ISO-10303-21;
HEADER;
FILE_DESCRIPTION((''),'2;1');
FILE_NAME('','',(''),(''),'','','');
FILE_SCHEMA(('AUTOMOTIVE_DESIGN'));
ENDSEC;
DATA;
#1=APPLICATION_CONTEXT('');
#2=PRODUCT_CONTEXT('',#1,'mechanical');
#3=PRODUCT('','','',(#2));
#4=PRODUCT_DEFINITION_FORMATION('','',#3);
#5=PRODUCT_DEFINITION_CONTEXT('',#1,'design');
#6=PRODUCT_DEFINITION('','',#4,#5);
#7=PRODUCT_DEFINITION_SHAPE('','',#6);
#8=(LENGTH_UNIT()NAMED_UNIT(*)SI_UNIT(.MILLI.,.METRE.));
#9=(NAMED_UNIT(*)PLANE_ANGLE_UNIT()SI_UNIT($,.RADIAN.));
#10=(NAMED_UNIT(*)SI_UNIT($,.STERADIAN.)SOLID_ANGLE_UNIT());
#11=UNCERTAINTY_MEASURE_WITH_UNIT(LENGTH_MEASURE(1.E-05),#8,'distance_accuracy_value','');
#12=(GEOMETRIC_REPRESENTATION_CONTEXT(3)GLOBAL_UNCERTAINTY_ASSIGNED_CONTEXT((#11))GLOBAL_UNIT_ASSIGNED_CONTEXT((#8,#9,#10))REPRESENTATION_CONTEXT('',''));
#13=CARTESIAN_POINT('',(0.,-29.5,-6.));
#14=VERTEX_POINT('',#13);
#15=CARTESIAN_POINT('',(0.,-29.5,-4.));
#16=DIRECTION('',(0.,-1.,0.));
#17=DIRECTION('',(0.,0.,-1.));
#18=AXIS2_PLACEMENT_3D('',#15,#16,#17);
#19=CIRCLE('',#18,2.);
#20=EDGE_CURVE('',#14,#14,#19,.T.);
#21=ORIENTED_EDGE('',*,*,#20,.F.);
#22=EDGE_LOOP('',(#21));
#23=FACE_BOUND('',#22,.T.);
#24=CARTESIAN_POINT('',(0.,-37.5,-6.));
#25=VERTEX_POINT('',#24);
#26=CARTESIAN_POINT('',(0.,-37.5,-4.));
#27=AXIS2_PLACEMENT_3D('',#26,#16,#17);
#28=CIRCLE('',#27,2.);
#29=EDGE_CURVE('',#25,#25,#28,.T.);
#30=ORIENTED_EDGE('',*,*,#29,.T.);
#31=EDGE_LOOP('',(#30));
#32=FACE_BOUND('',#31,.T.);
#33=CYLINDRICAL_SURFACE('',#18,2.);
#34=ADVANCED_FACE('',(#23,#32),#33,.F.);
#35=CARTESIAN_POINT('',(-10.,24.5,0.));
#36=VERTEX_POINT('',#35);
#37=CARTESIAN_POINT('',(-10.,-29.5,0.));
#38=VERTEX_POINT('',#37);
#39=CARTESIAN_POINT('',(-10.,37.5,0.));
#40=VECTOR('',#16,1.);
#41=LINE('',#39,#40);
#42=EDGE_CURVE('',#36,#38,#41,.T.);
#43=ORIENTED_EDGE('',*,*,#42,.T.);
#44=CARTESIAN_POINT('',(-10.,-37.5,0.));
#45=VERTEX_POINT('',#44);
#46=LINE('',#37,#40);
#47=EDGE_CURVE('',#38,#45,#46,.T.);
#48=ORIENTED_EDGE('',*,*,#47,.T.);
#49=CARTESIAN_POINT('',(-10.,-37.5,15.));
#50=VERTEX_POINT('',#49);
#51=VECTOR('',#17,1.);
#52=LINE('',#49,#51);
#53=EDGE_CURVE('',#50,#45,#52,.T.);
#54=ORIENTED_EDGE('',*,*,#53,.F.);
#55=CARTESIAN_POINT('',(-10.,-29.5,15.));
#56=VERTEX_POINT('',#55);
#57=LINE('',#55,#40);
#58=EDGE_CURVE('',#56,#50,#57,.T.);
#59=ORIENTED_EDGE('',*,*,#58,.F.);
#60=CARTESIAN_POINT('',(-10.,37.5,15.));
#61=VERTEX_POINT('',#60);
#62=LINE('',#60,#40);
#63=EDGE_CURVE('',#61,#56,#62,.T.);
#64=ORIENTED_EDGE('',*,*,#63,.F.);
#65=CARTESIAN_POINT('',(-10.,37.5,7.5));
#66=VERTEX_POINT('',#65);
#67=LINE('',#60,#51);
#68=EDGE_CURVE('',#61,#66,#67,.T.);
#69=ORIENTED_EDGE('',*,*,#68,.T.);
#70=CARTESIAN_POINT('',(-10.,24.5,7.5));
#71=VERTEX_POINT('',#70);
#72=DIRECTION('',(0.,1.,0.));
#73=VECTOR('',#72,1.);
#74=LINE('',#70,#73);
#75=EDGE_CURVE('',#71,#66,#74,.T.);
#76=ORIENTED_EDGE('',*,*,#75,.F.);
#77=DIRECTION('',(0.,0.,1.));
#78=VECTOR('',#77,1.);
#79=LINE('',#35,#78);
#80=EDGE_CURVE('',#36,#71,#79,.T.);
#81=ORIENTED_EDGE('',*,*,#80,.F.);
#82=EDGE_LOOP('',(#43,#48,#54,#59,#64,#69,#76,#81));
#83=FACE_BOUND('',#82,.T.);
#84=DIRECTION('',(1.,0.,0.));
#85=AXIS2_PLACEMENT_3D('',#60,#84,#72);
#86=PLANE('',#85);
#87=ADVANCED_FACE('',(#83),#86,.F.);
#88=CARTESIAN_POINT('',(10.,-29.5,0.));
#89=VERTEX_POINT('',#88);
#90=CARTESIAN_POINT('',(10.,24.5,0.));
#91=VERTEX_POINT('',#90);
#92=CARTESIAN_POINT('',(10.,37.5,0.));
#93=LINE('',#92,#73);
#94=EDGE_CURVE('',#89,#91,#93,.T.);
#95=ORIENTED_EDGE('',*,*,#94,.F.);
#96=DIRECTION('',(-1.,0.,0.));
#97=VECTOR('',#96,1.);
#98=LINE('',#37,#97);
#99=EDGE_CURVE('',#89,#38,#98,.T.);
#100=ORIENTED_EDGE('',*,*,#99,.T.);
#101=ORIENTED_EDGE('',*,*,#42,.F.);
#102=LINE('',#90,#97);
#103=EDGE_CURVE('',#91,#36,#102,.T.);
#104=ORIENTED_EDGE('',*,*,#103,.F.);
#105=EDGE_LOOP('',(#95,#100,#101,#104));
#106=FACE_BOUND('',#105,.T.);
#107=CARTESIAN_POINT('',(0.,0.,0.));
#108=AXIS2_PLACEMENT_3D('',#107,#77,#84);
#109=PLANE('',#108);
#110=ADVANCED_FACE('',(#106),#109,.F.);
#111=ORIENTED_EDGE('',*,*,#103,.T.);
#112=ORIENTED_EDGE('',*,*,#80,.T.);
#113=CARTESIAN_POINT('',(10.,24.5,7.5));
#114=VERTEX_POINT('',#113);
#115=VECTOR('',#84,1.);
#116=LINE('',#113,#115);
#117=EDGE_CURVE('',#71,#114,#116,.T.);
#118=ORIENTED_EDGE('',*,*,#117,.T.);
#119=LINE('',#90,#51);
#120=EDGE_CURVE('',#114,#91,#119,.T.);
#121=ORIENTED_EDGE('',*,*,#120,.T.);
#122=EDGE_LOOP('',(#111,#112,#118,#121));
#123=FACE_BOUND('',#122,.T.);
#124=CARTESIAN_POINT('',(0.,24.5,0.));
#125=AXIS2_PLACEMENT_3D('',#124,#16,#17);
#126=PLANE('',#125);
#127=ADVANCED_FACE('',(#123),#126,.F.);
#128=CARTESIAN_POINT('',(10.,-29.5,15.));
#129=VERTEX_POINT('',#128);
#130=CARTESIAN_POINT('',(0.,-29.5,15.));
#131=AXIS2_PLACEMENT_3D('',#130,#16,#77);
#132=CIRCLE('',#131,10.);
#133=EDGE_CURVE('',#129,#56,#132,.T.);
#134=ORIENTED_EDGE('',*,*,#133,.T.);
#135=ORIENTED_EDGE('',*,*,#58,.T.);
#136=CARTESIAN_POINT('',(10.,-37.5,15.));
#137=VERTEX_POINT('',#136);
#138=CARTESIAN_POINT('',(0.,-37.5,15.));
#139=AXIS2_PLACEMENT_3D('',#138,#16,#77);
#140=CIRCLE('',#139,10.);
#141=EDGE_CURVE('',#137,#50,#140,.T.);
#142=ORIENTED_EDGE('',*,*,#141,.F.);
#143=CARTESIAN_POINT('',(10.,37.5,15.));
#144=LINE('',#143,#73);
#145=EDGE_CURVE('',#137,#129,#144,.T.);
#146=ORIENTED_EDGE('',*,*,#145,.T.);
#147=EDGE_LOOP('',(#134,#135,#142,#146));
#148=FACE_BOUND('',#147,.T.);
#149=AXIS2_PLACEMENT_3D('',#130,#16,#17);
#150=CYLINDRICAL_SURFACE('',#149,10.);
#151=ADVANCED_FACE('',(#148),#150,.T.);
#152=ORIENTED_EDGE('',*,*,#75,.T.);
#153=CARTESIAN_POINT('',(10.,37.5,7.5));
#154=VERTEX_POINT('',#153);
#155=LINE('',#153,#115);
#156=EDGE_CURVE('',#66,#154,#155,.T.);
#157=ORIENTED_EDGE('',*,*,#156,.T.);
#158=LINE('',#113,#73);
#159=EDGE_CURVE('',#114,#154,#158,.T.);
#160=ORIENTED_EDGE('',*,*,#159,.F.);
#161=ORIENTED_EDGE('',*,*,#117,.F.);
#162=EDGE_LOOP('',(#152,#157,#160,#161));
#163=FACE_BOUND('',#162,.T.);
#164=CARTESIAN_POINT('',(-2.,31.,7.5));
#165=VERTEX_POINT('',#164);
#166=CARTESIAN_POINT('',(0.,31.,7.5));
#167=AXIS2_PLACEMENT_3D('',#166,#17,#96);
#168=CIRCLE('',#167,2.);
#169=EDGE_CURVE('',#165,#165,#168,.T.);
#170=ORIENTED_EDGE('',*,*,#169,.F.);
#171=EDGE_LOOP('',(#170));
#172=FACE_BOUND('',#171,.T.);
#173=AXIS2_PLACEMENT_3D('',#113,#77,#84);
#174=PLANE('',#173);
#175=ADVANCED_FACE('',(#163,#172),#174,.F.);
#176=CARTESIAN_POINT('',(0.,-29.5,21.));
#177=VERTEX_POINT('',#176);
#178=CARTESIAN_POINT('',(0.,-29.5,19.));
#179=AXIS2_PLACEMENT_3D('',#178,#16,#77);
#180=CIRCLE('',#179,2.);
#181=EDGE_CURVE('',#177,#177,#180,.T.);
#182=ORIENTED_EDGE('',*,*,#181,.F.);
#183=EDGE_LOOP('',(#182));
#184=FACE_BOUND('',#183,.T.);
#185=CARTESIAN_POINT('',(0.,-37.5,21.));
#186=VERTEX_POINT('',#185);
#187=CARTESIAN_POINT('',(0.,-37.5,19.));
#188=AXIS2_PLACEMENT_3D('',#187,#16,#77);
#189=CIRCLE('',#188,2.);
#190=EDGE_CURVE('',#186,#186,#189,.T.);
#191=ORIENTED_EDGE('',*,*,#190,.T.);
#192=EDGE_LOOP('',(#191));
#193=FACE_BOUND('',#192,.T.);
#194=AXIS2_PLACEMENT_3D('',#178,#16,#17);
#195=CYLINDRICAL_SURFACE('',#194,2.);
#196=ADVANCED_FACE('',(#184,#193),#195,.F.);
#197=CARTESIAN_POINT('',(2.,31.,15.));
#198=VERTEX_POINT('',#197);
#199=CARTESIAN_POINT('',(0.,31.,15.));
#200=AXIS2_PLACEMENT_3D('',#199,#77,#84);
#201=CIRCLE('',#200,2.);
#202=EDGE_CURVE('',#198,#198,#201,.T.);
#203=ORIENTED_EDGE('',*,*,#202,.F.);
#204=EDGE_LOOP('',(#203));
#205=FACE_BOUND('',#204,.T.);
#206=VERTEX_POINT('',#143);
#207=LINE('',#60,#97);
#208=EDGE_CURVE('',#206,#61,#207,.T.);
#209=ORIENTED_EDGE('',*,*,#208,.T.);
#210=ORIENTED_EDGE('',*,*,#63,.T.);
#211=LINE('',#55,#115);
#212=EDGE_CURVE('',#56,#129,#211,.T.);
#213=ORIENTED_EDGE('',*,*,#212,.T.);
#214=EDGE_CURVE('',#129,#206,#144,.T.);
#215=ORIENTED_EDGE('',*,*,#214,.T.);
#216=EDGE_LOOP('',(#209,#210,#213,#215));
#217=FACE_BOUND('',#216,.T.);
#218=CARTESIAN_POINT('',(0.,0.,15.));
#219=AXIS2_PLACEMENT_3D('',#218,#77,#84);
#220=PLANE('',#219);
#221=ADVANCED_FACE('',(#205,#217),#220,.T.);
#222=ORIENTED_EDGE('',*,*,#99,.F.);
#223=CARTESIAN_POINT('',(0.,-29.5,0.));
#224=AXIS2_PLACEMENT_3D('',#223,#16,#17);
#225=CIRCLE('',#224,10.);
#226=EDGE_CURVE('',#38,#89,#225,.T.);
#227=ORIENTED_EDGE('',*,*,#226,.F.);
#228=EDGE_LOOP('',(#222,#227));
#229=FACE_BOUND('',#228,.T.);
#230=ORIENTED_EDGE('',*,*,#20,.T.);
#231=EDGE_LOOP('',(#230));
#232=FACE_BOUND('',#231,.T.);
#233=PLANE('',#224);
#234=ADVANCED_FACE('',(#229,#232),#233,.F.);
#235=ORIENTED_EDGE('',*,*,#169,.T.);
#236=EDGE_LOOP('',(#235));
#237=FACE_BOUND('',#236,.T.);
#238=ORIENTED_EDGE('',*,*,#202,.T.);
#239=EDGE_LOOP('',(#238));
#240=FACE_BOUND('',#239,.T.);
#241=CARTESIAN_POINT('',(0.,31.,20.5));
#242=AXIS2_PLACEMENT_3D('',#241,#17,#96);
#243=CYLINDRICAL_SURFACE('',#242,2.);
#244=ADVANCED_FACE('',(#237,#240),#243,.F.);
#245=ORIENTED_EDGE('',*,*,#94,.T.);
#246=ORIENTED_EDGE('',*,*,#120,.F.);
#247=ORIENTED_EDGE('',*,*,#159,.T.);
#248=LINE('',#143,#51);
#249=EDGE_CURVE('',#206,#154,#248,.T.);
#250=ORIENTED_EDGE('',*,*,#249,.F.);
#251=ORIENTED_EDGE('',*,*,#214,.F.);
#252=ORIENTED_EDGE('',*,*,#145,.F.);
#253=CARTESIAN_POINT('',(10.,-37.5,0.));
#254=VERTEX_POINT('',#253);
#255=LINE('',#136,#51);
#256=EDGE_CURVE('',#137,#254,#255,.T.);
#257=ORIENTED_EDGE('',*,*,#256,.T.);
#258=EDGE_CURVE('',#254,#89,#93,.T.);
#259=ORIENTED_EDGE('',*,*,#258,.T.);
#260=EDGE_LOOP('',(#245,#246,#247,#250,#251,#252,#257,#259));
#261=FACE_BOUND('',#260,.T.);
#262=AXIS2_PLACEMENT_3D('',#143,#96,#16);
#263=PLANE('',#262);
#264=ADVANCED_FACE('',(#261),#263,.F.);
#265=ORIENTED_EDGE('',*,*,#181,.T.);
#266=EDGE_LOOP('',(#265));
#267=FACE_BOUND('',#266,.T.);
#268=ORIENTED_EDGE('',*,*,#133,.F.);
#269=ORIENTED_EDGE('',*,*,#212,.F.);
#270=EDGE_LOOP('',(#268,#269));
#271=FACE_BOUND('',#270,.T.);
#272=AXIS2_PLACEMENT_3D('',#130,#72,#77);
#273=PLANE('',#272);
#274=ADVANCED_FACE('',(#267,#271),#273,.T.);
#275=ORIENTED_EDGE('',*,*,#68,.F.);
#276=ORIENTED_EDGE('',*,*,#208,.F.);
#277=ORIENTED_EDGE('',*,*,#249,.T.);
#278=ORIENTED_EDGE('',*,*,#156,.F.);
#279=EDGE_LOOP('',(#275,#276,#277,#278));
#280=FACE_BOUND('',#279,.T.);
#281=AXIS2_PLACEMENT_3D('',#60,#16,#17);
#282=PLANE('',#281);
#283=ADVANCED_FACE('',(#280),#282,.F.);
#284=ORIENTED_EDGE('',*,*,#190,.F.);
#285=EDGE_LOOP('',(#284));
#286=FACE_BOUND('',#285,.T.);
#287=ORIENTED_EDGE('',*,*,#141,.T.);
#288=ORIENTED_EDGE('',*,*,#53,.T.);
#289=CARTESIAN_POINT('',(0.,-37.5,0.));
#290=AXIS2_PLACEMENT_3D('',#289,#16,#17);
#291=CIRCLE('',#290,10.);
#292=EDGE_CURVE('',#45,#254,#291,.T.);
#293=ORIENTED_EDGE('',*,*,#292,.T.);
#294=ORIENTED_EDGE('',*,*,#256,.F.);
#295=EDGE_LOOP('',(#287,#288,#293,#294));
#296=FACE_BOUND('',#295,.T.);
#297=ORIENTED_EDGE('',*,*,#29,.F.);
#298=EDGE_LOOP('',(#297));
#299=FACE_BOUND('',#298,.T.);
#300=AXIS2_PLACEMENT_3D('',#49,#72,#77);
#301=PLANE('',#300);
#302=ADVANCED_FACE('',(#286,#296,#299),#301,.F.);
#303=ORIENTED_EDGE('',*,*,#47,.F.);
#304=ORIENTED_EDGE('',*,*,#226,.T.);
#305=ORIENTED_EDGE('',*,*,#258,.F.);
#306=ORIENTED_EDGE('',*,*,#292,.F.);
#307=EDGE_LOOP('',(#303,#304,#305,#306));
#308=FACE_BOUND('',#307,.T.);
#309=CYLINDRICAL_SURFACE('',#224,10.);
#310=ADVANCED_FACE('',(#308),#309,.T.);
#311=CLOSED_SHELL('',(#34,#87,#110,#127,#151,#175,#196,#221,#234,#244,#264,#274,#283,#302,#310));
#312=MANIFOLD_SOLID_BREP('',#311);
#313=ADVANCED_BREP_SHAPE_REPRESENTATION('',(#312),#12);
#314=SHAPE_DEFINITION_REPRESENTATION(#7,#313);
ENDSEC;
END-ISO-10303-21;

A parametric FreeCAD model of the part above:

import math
import FreeCAD as App
import Part
import Sketcher


def add_polygon(sketch, points):
    """Adds a closed chain of lines whose ends are joined by coincident constraints."""
    first, n = sketch.GeometryCount, len(points)
    for a, b in zip(points, points[1:] + points[:1]):
        sketch.addGeometry(Part.LineSegment(App.Vector(*a, 0), App.Vector(*b, 0)), False)
    for i in range(n):
        sketch.addConstraint(Sketcher.Constraint("Coincident", first + i, 2, first + (i + 1) % n, 1))

doc = App.newDocument("Part")
body = doc.addObject("PartDesign::Body", "Body")

# Sketch on XY plane
sketch1 = body.newObject("Sketcher::SketchObject", "Sketch")
sketch1.AttachmentSupport = (doc.getObject("XY_Plane"), [""])
sketch1.MapMode = "FlatFace"
add_polygon(sketch1, [(-10, 38), (-10, -38), (10, -38), (10, 38)])  # lines 0-3
sketch1.addConstraint([
    Sketcher.Constraint("Vertical", 0),
    Sketcher.Constraint("Horizontal", 1),
    Sketcher.Constraint("Vertical", 2),
    Sketcher.Constraint("Horizontal", 3),
    Sketcher.Constraint("Symmetric", 0, 2, 2, 2, -1, 1),
    Sketcher.Constraint("DistanceX", 1, 1, 1, 2, 20.0),
    Sketcher.Constraint("DistanceY", 0, 2, 0, 1, 75.0),
])
pad1 = body.newObject("PartDesign::Pad", "Pad")
pad1.Profile = sketch1
pad1.Length = 15

# Sketch on XZ plane
sketch2 = body.newObject("Sketcher::SketchObject", "Sketch001")
sketch2.AttachmentSupport = (doc.getObject("XZ_Plane"), [""])
sketch2.MapMode = "FlatFace"
sketch2.AttachmentOffset = App.Placement(App.Vector(0, 0, 37.5), App.Rotation())
sketch2.addGeometry([
    Part.LineSegment(App.Vector(10, 0, 0), App.Vector(-10, 0, 0)),  # 0
    Part.ArcOfCircle(Part.Circle(App.Vector(0, 0, 0), App.Vector(0, 0, 1), 10), math.radians(180), math.radians(360)),  # 1
    Part.Circle(App.Vector(0, -4, 0), App.Vector(0, 0, 1), 2),  # 2
    Part.LineSegment(App.Vector(-10, 15, 0), App.Vector(10, 15, 0)),  # 3
    Part.ArcOfCircle(Part.Circle(App.Vector(0, 15, 0), App.Vector(0, 0, 1), 10), math.radians(0), math.radians(180)),  # 4
    Part.Circle(App.Vector(0, 19, 0), App.Vector(0, 0, 1), 2),  # 5
], False)
sketch2.addConstraint([
    Sketcher.Constraint("Coincident", 0, 1, 1, 2),
    Sketcher.Constraint("Coincident", 1, 1, 0, 2),
    Sketcher.Constraint("Coincident", 3, 1, 4, 2),
    Sketcher.Constraint("Coincident", 4, 1, 3, 2),
    Sketcher.Constraint("Horizontal", 0),
    Sketcher.Constraint("Horizontal", 3),
    Sketcher.Constraint("Coincident", 1, 3, -1, 1),
    Sketcher.Constraint("Equal", 1, 4),
    Sketcher.Constraint("Equal", 2, 5),
    Sketcher.Constraint("PointOnObject", 2, 3, -2),
    Sketcher.Constraint("PointOnObject", 4, 3, -2),
    Sketcher.Constraint("PointOnObject", 5, 3, -2),
    Sketcher.Constraint("PointOnObject", 0, 1, -1),
    Sketcher.Constraint("Horizontal", 4, 3, 3, 1),
    Sketcher.Constraint("Diameter", 2, 4.0),
    Sketcher.Constraint("Radius", 1, 10.0),
    Sketcher.Constraint("DistanceY", 2, 3, -1, 1, 4.0),
    Sketcher.Constraint("DistanceY", -1, 1, 4, 3, 15.0),
    Sketcher.Constraint("DistanceY", -1, 1, 5, 3, 19.0),
])
pad2 = body.newObject("PartDesign::Pad", "Pad001")
pad2.Profile = sketch2
pad2.Length = 8
pad2.Reversed = True

# Sketch on XZ plane
sketch3 = body.newObject("Sketcher::SketchObject", "Sketch002")
sketch3.AttachmentSupport = (doc.getObject("XZ_Plane"), [""])
sketch3.MapMode = "FlatFace"
sketch3.AttachmentOffset = App.Placement(App.Vector(0, 0, -37.5), App.Rotation())
add_polygon(sketch3, [(-10, 0), (-10, 8), (10, 8), (10, 0)])  # lines 0-3
sketch3.addConstraint([
    Sketcher.Constraint("Vertical", 0),
    Sketcher.Constraint("Horizontal", 1),
    Sketcher.Constraint("Vertical", 2),
    Sketcher.Constraint("Horizontal", 3),
    Sketcher.Constraint("Symmetric", 2, 2, 3, 2, -1, 1),
    Sketcher.Constraint("DistanceX", 1, 1, 1, 2, 20.0),
    Sketcher.Constraint("DistanceY", 0, 1, 0, 2, 7.5),
])
pocket1 = body.newObject("PartDesign::Pocket", "Pocket")
pocket1.Profile = sketch3
pocket1.Length = 13
pocket1.Reversed = True

# Sketch on XY plane
sketch4 = body.newObject("Sketcher::SketchObject", "Sketch003")
sketch4.AttachmentSupport = (doc.getObject("XY_Plane"), [""])
sketch4.MapMode = "FlatFace"
sketch4.AttachmentOffset = App.Placement(App.Vector(0, 0, 7.5), App.Rotation())
sketch4.addGeometry(Part.Circle(App.Vector(0, 31, 0), App.Vector(0, 0, 1), 2), False)
sketch4.addConstraint([
    Sketcher.Constraint("PointOnObject", 0, 3, -2),
    Sketcher.Constraint("Diameter", 0, 4.0),
    Sketcher.Constraint("DistanceY", -1, 1, 0, 3, 31.0),
])
pocket2 = body.newObject("PartDesign::Pocket", "Pocket001")
pocket2.Profile = sketch4
pocket2.Length = 13
pocket2.Reversed = True

doc.recompute()
